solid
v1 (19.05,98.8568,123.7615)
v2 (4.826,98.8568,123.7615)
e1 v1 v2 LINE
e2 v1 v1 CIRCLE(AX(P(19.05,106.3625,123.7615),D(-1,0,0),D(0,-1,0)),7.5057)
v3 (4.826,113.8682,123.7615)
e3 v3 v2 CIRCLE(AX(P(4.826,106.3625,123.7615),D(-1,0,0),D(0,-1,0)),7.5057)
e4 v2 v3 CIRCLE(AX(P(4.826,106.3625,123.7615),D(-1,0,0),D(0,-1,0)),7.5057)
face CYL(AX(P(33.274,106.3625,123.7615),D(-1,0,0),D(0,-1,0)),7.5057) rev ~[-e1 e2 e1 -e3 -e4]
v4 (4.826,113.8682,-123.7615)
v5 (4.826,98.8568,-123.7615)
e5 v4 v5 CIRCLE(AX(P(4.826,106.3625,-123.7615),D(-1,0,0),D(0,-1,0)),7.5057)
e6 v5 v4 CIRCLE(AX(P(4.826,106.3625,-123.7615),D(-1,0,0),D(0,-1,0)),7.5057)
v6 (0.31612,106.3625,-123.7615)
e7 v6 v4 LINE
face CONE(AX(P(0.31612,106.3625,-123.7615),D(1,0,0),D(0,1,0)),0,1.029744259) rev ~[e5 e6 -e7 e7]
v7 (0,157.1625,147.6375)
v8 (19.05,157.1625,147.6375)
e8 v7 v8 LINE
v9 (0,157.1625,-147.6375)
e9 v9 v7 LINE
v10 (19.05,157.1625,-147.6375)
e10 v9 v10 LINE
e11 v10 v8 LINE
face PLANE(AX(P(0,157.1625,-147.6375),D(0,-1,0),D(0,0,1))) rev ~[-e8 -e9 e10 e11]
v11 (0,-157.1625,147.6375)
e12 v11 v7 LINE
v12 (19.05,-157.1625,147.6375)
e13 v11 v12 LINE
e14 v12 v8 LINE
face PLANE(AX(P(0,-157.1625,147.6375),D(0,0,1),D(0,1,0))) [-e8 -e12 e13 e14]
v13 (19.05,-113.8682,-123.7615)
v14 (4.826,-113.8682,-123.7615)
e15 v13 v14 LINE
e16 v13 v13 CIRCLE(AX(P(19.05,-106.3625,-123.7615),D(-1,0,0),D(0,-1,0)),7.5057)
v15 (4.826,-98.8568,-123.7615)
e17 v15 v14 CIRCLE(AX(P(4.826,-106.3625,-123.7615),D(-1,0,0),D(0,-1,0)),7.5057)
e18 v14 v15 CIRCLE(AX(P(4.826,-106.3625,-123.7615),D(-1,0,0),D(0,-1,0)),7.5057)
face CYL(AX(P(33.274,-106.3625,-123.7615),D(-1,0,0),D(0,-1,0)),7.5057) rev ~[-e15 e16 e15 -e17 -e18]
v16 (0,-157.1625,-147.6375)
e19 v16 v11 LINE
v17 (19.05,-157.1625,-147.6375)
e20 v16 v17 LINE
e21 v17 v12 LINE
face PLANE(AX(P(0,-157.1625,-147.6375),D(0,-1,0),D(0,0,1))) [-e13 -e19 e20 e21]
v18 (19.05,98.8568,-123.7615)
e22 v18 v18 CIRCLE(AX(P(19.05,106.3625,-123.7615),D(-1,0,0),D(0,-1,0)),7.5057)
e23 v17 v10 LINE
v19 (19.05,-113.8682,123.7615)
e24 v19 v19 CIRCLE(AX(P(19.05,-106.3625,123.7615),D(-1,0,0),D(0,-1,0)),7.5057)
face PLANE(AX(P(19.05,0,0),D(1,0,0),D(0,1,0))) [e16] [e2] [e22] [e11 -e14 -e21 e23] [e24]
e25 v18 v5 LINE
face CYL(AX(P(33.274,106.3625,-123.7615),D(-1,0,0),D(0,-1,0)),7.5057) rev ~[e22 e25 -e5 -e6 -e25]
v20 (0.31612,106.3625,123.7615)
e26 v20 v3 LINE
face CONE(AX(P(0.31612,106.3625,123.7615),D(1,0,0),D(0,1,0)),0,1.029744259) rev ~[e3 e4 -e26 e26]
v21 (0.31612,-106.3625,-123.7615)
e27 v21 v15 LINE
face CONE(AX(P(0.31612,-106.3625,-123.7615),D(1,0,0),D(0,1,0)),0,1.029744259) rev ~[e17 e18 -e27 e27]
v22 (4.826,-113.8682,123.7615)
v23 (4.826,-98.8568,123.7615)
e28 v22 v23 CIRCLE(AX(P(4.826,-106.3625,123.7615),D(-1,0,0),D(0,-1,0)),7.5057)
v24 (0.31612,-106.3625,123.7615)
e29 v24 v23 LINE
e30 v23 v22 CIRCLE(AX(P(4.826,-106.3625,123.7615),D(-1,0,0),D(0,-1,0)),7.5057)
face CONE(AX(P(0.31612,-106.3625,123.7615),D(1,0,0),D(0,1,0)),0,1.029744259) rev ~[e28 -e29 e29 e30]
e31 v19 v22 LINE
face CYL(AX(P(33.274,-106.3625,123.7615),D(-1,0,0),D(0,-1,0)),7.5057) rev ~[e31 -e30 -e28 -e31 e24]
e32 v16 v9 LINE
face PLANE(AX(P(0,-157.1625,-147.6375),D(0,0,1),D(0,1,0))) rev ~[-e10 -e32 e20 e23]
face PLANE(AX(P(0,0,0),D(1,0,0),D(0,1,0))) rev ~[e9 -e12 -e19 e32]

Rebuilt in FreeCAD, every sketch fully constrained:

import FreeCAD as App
import Part
import Sketcher
Q = App.Units.Quantity

doc = App.newDocument("Part")
body = doc.addObject("PartDesign::Body", "Body")

# Sketch on YZ plane
sketch1 = body.newObject("Sketcher::SketchObject", "Sketch")
sketch1.AttachmentSupport = (doc.getObject("YZ_Plane"), [""])
sketch1.MapMode = "FlatFace"
sketch1.addGeometry(Part.LineSegment(App.Vector(-157.1625, 147.6375, 0), App.Vector(-157.1625, -147.6375, 0)), False)
sketch1.addGeometry(Part.LineSegment(App.Vector(-157.1625, -147.6375, 0), App.Vector(157.1625, -147.6375, 0)), False)
sketch1.addGeometry(Part.LineSegment(App.Vector(157.1625, -147.6375, 0), App.Vector(157.1625, 147.6375, 0)), False)
sketch1.addGeometry(Part.LineSegment(App.Vector(157.1625, 147.6375, 0), App.Vector(-157.1625, 147.6375, 0)), False)
sketch1.addConstraint(Sketcher.Constraint("Coincident", 0, 2, 1, 1))
sketch1.addConstraint(Sketcher.Constraint("Coincident", 1, 2, 2, 1))
sketch1.addConstraint(Sketcher.Constraint("Coincident", 2, 2, 3, 1))
sketch1.addConstraint(Sketcher.Constraint("Coincident", 3, 2, 0, 1))
sketch1.addConstraint(Sketcher.Constraint("Vertical", 0))
sketch1.addConstraint(Sketcher.Constraint("Horizontal", 1))
sketch1.addConstraint(Sketcher.Constraint("Vertical", 2))
sketch1.addConstraint(Sketcher.Constraint("Horizontal", 3))
sketch1.addConstraint(Sketcher.Constraint("Symmetric", 0, 2, 2, 2, -1, 1))
sketch1.addConstraint(Sketcher.Constraint("DistanceX", 1, 1, 1, 2, Q("12.375 in")))
sketch1.addConstraint(Sketcher.Constraint("DistanceY", 0, 2, 0, 1, Q("11.625 in")))
pad1 = body.newObject("PartDesign::Pad", "Pad")
pad1.Profile = sketch1
pad1.Length = Q("0.75 in")

# Sketch on YZ plane
sketch2 = body.newObject("Sketcher::SketchObject", "Sketch001")
sketch2.AttachmentSupport = (doc.getObject("YZ_Plane"), [""])
sketch2.MapMode = "FlatFace"
sketch2.AttachmentOffset = App.Placement(App.Vector(0, 0, 0.75 * 25.4), App.Rotation())
sketch2.addGeometry(Part.Circle(App.Vector(-106.3625, 123.7615, 0), App.Vector(0, 0, 1), 7.5057), False)
sketch2.addGeometry(Part.Circle(App.Vector(106.3625, 123.7615, 0), App.Vector(0, 0, 1), 7.5057), False)
sketch2.addGeometry(Part.Circle(App.Vector(-106.3625, -123.7615, 0), App.Vector(0, 0, 1), 7.5057), False)
sketch2.addGeometry(Part.Circle(App.Vector(106.3625, -123.7615, 0), App.Vector(0, 0, 1), 7.5057), False)
sketch2.addConstraint(Sketcher.Constraint("Equal", 0, 1))
sketch2.addConstraint(Sketcher.Constraint("Equal", 1, 2))
sketch2.addConstraint(Sketcher.Constraint("Equal", 2, 3))
sketch2.addConstraint(Sketcher.Constraint("Symmetric", 1, 3, 2, 3, -1, 1))
sketch2.addConstraint(Sketcher.Constraint("Symmetric", 0, 3, 3, 3, -1, 1))
sketch2.addConstraint(Sketcher.Constraint("Symmetric", 0, 3, 1, 3, -2))
sketch2.addConstraint(Sketcher.Constraint("Diameter", 0, Q("0.591 in")))
sketch2.addConstraint(Sketcher.Constraint("DistanceX", 0, 3, -1, 1, Q("4.1875 in")))
sketch2.addConstraint(Sketcher.Constraint("DistanceY", 2, 3, 0, 3, Q("9.745 in")))
doc.recompute()
hole = body.newObject("PartDesign::Hole", "Hole")
hole.Profile = sketch2
hole.ThreadType = "None"
hole.Diameter = Q("0.591 in")
hole.DepthType = "Dimension"
hole.Depth = Q("0.56 in")
hole.DrillPoint = "Angled"
hole.DrillPointAngle = 118

doc.recompute()
